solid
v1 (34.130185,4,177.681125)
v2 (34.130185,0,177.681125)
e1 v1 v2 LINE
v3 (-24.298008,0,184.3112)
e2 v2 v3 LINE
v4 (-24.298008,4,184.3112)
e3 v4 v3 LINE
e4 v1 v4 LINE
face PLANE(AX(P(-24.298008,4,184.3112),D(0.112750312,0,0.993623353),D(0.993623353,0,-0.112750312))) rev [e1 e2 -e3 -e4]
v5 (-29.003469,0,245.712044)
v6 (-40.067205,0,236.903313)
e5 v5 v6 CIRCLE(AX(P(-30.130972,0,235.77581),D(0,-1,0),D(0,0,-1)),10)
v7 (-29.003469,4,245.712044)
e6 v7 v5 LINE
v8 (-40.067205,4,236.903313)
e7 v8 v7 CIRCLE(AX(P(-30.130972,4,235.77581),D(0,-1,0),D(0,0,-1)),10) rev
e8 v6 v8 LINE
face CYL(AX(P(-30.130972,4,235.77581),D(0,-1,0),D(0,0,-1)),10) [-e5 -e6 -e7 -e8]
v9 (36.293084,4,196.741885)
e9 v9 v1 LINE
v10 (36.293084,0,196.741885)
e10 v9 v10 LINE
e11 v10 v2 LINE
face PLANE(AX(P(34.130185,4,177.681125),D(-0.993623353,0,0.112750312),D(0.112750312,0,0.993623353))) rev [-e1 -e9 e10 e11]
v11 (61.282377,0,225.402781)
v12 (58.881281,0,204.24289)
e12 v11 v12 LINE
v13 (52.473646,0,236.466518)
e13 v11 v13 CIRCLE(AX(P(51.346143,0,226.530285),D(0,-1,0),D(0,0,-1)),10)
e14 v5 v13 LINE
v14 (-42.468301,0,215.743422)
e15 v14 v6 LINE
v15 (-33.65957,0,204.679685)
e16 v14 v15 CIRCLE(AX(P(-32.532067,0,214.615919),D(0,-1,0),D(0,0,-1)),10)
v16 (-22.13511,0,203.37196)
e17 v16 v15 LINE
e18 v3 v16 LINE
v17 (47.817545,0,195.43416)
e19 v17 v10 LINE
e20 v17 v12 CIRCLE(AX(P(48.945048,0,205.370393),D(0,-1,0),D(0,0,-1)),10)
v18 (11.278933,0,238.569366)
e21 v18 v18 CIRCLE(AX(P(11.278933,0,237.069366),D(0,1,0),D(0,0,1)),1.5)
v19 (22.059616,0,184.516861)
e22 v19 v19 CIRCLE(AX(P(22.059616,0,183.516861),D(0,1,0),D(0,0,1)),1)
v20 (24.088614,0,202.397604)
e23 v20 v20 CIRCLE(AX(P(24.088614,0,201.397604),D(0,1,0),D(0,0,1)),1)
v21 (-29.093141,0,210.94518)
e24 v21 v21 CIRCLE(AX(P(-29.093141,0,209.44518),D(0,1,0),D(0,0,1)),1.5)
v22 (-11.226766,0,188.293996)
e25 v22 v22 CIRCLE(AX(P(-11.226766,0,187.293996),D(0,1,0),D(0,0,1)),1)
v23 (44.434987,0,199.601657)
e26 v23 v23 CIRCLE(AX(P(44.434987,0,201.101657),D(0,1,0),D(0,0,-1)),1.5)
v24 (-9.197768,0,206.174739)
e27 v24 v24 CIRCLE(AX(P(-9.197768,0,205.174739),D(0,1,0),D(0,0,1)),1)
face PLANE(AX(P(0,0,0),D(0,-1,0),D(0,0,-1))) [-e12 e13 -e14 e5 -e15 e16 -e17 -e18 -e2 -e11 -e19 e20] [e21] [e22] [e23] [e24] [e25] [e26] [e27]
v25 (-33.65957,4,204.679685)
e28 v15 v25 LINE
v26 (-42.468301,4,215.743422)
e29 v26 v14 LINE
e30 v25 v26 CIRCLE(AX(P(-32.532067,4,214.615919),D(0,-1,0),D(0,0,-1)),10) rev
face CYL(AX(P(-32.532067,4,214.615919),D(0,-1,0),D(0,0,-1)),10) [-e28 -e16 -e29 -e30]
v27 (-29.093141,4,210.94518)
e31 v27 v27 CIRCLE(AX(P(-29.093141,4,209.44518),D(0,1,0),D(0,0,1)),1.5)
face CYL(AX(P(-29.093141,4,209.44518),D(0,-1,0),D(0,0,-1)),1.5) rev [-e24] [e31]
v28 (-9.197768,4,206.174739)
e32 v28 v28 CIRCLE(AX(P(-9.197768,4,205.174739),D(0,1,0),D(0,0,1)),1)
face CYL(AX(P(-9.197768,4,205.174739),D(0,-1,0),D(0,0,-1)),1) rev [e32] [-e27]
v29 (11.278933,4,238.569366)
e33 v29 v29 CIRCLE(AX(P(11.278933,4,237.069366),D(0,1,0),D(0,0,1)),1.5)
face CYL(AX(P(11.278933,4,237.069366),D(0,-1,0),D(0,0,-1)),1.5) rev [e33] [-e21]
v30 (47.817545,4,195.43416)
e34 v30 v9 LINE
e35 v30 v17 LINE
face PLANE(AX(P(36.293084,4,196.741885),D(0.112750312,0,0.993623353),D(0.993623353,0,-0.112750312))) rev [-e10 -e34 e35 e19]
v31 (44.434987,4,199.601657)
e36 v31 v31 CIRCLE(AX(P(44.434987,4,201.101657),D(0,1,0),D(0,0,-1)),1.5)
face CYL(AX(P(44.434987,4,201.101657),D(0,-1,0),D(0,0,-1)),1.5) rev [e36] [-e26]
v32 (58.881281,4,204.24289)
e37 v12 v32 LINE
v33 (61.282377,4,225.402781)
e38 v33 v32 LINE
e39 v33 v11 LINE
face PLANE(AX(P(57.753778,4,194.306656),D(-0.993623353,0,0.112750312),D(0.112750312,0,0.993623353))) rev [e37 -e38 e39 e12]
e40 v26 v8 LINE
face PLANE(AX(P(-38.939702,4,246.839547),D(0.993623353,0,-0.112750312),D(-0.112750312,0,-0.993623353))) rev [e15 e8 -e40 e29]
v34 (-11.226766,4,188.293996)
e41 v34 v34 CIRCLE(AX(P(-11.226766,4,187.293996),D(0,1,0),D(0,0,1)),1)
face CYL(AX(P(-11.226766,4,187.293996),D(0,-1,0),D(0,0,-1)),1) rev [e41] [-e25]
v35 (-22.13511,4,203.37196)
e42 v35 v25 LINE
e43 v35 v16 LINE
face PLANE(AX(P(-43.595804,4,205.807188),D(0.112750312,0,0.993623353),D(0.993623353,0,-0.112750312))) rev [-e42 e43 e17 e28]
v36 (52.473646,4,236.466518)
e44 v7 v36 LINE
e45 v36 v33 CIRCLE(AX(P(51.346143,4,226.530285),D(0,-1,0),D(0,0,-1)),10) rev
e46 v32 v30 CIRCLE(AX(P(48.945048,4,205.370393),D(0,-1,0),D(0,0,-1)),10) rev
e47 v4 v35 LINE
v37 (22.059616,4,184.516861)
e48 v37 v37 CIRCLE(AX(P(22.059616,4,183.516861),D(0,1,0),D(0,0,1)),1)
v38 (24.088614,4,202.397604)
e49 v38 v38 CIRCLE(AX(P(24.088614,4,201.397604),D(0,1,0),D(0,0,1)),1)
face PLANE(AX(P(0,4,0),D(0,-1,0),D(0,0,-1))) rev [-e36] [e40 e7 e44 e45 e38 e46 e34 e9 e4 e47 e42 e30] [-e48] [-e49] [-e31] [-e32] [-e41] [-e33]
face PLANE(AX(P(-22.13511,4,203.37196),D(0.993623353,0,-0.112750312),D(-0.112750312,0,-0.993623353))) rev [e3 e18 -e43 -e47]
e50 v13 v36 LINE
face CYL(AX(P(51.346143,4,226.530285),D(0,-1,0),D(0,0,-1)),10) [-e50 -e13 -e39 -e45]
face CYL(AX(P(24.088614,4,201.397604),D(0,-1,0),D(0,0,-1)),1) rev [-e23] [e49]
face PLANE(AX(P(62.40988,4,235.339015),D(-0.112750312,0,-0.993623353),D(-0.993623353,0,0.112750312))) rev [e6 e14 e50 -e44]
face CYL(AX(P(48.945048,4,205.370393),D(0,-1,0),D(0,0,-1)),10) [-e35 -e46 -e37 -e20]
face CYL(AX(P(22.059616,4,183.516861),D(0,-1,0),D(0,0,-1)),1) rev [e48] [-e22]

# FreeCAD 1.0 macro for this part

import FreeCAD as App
import Part
import Sketcher


def edges_at(feature, points):
    """Names of the edges that pass closest to the given points."""
    edges = feature.Shape.Edges
    near = lambda p: min(range(len(edges)), key=lambda i: edges[i].distToShape(Part.Vertex(*p))[0])
    return sorted({f"Edge{near(p) + 1}" for p in points})


def add_polygon(sketch, points):
    """Adds a closed chain of lines whose ends are joined by coincident constraints."""
    first, n = sketch.GeometryCount, len(points)
    for a, b in zip(points, points[1:] + points[:1]):
        sketch.addGeometry(Part.LineSegment(App.Vector(*a, 0), App.Vector(*b, 0)), False)
    for i in range(n):
        sketch.addConstraint(Sketcher.Constraint("Coincident", first + i, 2, first + (i + 1) % n, 1))

doc = App.newDocument("Part")
body = doc.addObject("PartDesign::Body", "Body")

sketch1 = body.newObject("Sketcher::SketchObject", "Sketch")
sketch1.AttachmentSupport = (doc.getObject("XZ_Plane"), [""])
sketch1.MapMode = "FlatFace"
add_polygon(sketch1, [(-22.1, 203.4), (-43.6, 205.8), (-38.9, 246.8), (62.4, 235.3), (57.8, 194.3), (36.3, 196.7), (34.1, 177.7), (-24.3, 184.3)])
sketch1.addGeometry(Part.Circle(App.Vector(11.3, 237.1, 0), App.Vector(0, 0, 1), 1.5), False)
sketch1.addGeometry(Part.Circle(App.Vector(44.4, 201.1, 0), App.Vector(0, 0, 1), 1.5), False)
sketch1.addGeometry(Part.Circle(App.Vector(24.1, 201.4, 0), App.Vector(0, 0, 1), 1), False)
sketch1.addGeometry(Part.Circle(App.Vector(22.1, 183.5, 0), App.Vector(0, 0, 1), 1), False)
sketch1.addGeometry(Part.Circle(App.Vector(-9.2, 205.2, 0), App.Vector(0, 0, 1), 1), False)
sketch1.addGeometry(Part.Circle(App.Vector(-29.1, 209.4, 0), App.Vector(0, 0, 1), 1.5), False)
sketch1.addGeometry(Part.Circle(App.Vector(-11.2, 187.3, 0), App.Vector(0, 0, 1), 1), False)
sketch1.addConstraint(Sketcher.Constraint("Equal", 8, 9))
sketch1.addConstraint(Sketcher.Constraint("Equal", 10, 11))
sketch1.addConstraint(Sketcher.Constraint("Equal", 11, 12))
sketch1.addConstraint(Sketcher.Constraint("Equal", 9, 13))
sketch1.addConstraint(Sketcher.Constraint("Equal", 12, 14))
sketch1.addConstraint(Sketcher.Constraint("Perpendicular", 0, 1))
sketch1.addConstraint(Sketcher.Constraint("Perpendicular", 1, 2))
sketch1.addConstraint(Sketcher.Constraint("Perpendicular", 2, 3))
sketch1.addConstraint(Sketcher.Constraint("Perpendicular", 3, 4))
sketch1.addConstraint(Sketcher.Constraint("Perpendicular", 4, 5))
sketch1.addConstraint(Sketcher.Constraint("Perpendicular", 5, 6))
sketch1.addConstraint(Sketcher.Constraint("Perpendicular", 6, 7))
sketch1.addConstraint(Sketcher.Constraint("Equal", 1, 3))
sketch1.addConstraint(Sketcher.Constraint("Equal", 0, 4))
sketch1.addConstraint(Sketcher.Constraint("Diameter", 8, 3.0))
sketch1.addConstraint(Sketcher.Constraint("Diameter", 10, 2.0))
sketch1.addConstraint(Sketcher.Constraint("Distance", 2, 102.0))
sketch1.addConstraint(Sketcher.Constraint("DistanceY", 3, 2, 9, 3, 6.795))
sketch1.addConstraint(Sketcher.Constraint("DistanceY", -1, 1, 6, 2, 184.3112))
sketch1.addConstraint(Sketcher.Constraint("DistanceX", 12, 3, 8, 3, 20.476702))
sketch1.addConstraint(Sketcher.Constraint("DistanceX", 14, 3, 8, 3, 22.505699))
sketch1.addConstraint(Sketcher.Constraint("DistanceX", 0, 2, 1, 2, 4.656102))
sketch1.addConstraint(Sketcher.Constraint("DistanceX", 5, 2, 4, 2, 2.162899))
sketch1.addConstraint(Sketcher.Constraint("DistanceX", 5, 2, 9, 3, 10.304802))
sketch1.addConstraint(Sketcher.Constraint("Distance", 0, 21.59842))
sketch1.addConstraint(Sketcher.Constraint("DistanceY", -1, 1, 11, 3, 183.516861))
sketch1.addConstraint(Sketcher.Constraint("DistanceX", 12, 3, -1, 1, 9.197768))
sketch1.addConstraint(Sketcher.Constraint("DistanceY", -1, 1, 12, 3, 205.174739))
sketch1.addConstraint(Sketcher.Constraint("DistanceX", 13, 3, -1, 1, 29.093141))
sketch1.addConstraint(Sketcher.Constraint("DistanceY", -1, 1, 13, 3, 209.44518))
sketch1.addConstraint(Sketcher.Constraint("DistanceY", -1, 1, 0, 2, 205.807188))
sketch1.addConstraint(Sketcher.Constraint("DistanceX", -1, 1, 2, 2, 62.40988))
sketch1.addConstraint(Sketcher.Constraint("DistanceY", 9, 3, 8, 3, 35.967709))
sketch1.addConstraint(Sketcher.Constraint("DistanceX", 8, 3, 10, 3, 12.809681))
sketch1.addConstraint(Sketcher.Constraint("DistanceY", 10, 3, 8, 3, 35.671762))
sketch1.addConstraint(Sketcher.Constraint("DistanceX", 11, 3, 9, 3, 22.375371))
sketch1.addConstraint(Sketcher.Constraint("DistanceY", 14, 3, 8, 3, 49.77537))
pad1 = body.newObject("PartDesign::Pad", "Pad")
pad1.Profile = sketch1
pad1.Length = 4
pad1.Reversed = True
doc.recompute()

fillet = body.newObject("PartDesign::Fillet", "Fillet")
fillet.Base = (pad1, edges_at(pad1, [(-38.94, 2, 246.84)]))
fillet.Radius = 10
doc.recompute()

fillet2 = body.newObject("PartDesign::Fillet", "Fillet001")
fillet2.Base = (fillet, edges_at(fillet, [(62.41, 2, 235.339)]))
fillet2.Radius = 10
doc.recompute()

fillet3 = body.newObject("PartDesign::Fillet", "Fillet002")
fillet3.Base = (fillet2, edges_at(fillet2, [(57.754, 2, 194.307)]))
fillet3.Radius = 10
doc.recompute()

fillet4 = body.newObject("PartDesign::Fillet", "Fillet003")
fillet4.Base = (fillet3, edges_at(fillet3, [(-43.596, 2, 205.807)]))
fillet4.Radius = 10

doc.recompute()
